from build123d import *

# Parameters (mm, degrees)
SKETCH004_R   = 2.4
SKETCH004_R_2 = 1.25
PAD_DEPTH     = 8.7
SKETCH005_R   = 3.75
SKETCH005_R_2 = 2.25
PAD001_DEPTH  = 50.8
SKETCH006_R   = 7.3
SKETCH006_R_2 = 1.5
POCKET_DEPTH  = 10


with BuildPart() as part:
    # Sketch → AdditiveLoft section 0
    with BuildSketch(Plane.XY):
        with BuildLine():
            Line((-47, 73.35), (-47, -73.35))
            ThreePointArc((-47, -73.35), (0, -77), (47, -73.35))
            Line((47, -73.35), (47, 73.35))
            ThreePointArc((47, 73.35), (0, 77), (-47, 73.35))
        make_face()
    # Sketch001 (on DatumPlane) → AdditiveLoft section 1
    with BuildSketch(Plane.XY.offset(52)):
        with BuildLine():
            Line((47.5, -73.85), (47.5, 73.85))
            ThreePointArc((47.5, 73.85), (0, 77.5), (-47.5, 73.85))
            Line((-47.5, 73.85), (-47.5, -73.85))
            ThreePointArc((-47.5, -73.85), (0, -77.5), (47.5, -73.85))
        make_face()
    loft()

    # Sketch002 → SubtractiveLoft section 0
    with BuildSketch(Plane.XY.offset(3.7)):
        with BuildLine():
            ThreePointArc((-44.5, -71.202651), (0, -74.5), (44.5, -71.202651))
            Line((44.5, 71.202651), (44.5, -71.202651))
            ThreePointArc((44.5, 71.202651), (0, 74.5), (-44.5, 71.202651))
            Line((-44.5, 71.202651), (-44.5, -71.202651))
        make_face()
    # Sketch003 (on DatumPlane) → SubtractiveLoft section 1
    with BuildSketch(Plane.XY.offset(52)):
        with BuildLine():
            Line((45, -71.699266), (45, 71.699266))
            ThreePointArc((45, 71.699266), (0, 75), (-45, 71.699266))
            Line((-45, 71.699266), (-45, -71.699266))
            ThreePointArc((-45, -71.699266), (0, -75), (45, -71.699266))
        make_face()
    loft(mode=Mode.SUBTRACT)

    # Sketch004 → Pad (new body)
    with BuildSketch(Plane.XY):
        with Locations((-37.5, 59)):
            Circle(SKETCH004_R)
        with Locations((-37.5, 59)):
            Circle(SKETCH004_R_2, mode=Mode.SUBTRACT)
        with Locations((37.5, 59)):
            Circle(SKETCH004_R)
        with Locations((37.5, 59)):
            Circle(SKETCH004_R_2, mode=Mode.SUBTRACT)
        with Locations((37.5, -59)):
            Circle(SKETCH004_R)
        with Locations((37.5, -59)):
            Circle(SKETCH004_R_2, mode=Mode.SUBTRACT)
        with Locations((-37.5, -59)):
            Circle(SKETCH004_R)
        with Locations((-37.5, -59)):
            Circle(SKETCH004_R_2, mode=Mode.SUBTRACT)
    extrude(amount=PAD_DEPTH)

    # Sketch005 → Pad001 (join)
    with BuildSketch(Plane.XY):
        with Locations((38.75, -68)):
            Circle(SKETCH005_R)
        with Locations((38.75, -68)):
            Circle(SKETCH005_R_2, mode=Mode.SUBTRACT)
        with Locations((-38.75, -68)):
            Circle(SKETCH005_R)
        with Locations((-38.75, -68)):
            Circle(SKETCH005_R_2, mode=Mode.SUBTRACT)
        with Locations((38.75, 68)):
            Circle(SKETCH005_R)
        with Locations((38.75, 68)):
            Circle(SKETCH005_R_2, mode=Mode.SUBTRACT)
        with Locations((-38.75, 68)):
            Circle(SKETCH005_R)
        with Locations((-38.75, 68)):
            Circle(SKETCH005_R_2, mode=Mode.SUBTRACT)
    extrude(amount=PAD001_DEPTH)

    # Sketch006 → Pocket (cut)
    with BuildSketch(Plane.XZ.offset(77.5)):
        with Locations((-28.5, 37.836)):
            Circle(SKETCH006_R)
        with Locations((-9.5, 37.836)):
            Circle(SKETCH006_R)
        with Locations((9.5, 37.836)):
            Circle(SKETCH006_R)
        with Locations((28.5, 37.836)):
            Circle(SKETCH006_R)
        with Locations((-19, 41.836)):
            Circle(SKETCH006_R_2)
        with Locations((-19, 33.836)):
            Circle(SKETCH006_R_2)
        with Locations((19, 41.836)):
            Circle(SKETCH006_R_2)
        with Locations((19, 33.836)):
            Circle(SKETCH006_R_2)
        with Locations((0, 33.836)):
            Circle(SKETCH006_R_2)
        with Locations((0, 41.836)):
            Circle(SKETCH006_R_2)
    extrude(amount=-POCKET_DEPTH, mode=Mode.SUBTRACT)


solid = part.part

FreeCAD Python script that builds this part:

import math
import FreeCAD as App
import Part
import Sketcher

doc = App.newDocument("Part")
params = doc.addObject("Spreadsheet::Sheet", "Params")
for row, (alias, value) in enumerate([
    ("sketch1_height", "146.7 mm"),
    ("sketch2_height", "147.7 mm"),
    ("sketch5_diameter", "4.8 mm"),
    ("sketch5_diameter2", "2.5 mm"),
    ("pad1_length", "8.7 mm"),
    ("sketch6_diameter", "7.5 mm"),
    ("sketch6_diameter2", "4.5 mm"),
    ("pad2_length", "50.8 mm"),
    ("sketch7_diameter", "3 mm"),
    ("sketch7_diameter2", "14.6 mm"),
    ("pocket1_length", "10 mm"),
], start=1):
    params.set(f"A{row}", alias)
    params.set(f"B{row}", "=" + value)
    params.setAlias(f"B{row}", alias)

body = doc.addObject("PartDesign::Body", "Body")

# Sketch on XY plane
sketch1 = body.newObject("Sketcher::SketchObject", "Sketch")
sketch1.AttachmentSupport = (doc.getObject("XY_Plane"), [""])
sketch1.MapMode = "FlatFace"
sketch1.addGeometry([
    Part.LineSegment(App.Vector(-47, 73, 0), App.Vector(-47, -73, 0)),
    Part.ArcOfCircle(Part.Circle(App.Vector(0, 227, 0), App.Vector(0, 0, 1), 304), math.radians(-98.88), math.radians(-81.12)),
    Part.LineSegment(App.Vector(47, -73, 0), App.Vector(47, 73, 0)),
    Part.ArcOfCircle(Part.Circle(App.Vector(0, -227, 0), App.Vector(0, 0, 1), 304), math.radians(81.12), math.radians(98.88)),
], False)
sketch1.addConstraint([
    Sketcher.Constraint("Coincident", 0, 2, 1, 1),
    Sketcher.Constraint("Coincident", 1, 2, 2, 1),
    Sketcher.Constraint("Coincident", 2, 2, 3, 1),
    Sketcher.Constraint("Coincident", 3, 2, 0, 1),
    Sketcher.Constraint("Vertical", 0),
    Sketcher.Constraint("Vertical", 2),
    Sketcher.Constraint("Equal", 1, 3),
    Sketcher.Constraint("Symmetric", 1, 3, 3, 3, -1, 1),
    Sketcher.Constraint("Symmetric", 0, 2, 1, 2, -2),
    Sketcher.Constraint("DistanceY", 0, 2, 0, 1, 146.7),
    Sketcher.Constraint("DistanceX", 0, 2, -1, 1, 47.0),
    Sketcher.Constraint("Radius", 1, 304.42774),
])
sketch1.setExpression("Constraints[9]", "Params.sketch1_height")

# Sketch on XY plane
sketch2 = body.newObject("Sketcher::SketchObject", "Sketch001")
sketch2.AttachmentSupport = (doc.getObject("XY_Plane"), [""])
sketch2.MapMode = "FlatFace"
sketch2.AttachmentOffset = App.Placement(App.Vector(0, 0, 52), App.Rotation())
sketch2.addGeometry([
    Part.LineSegment(App.Vector(48, -74, 0), App.Vector(48, 74, 0)),
    Part.ArcOfCircle(Part.Circle(App.Vector(0, -233, 0), App.Vector(0, 0, 1), 311), math.radians(81.21), math.radians(98.79)),
    Part.LineSegment(App.Vector(-48, 74, 0), App.Vector(-48, -74, 0)),
    Part.ArcOfCircle(Part.Circle(App.Vector(0, 233, 0), App.Vector(0, 0, 1), 311), math.radians(-98.79), math.radians(-81.21)),
], False)
sketch2.addConstraint([
    Sketcher.Constraint("Coincident", 0, 2, 1, 1),
    Sketcher.Constraint("Coincident", 1, 2, 2, 1),
    Sketcher.Constraint("Coincident", 2, 2, 3, 1),
    Sketcher.Constraint("Coincident", 3, 2, 0, 1),
    Sketcher.Constraint("Vertical", 0),
    Sketcher.Constraint("Vertical", 2),
    Sketcher.Constraint("Equal", 1, 3),
    Sketcher.Constraint("Symmetric", 1, 3, 3, 3, -1, 1),
    Sketcher.Constraint("Symmetric", 0, 2, 1, 2, -2),
    Sketcher.Constraint("DistanceY", 0, 1, 0, 2, 147.7),
    Sketcher.Constraint("DistanceX", 1, 2, 0, 2, 95.0),
    Sketcher.Constraint("Radius", 1, 310.900342),
])
sketch2.setExpression("Constraints[9]", "Params.sketch2_height")

additiveloft = body.newObject("PartDesign::AdditiveLoft", "AdditiveLoft")
additiveloft.Profile = sketch1
additiveloft.Sections = [sketch2]

# Sketch on XY plane
sketch3 = body.newObject("Sketcher::SketchObject", "Sketch002")
sketch3.AttachmentSupport = (doc.getObject("XY_Plane"), [""])
sketch3.MapMode = "FlatFace"
sketch3.AttachmentOffset = App.Placement(App.Vector(0, 0, 3.7), App.Rotation())
sketch3.addGeometry([
    Part.ArcOfCircle(Part.Circle(App.Vector(0, 227, 0), App.Vector(0, 0, 1), 302), math.radians(-98.48), math.radians(-81.52)),
    Part.LineSegment(App.Vector(44, -71, 0), App.Vector(44, 71, 0)),
    Part.ArcOfCircle(Part.Circle(App.Vector(0, -227, 0), App.Vector(0, 0, 1), 302), math.radians(81.52), math.radians(98.48)),
    Part.LineSegment(App.Vector(-44, 71, 0), App.Vector(-44, -71, 0)),
], False)
sketch3.addConstraint([
    Sketcher.Constraint("Coincident", 0, 2, 1, 1),
    Sketcher.Constraint("Coincident", 1, 2, 2, 1),
    Sketcher.Constraint("Coincident", 2, 2, 3, 1),
    Sketcher.Constraint("Coincident", 3, 2, 0, 1),
    Sketcher.Constraint("Vertical", 1),
    Sketcher.Constraint("Vertical", 3),
    Sketcher.Constraint("Equal", 0, 2),
    Sketcher.Constraint("Symmetric", 0, 3, 2, 3, -1, 1),
    Sketcher.Constraint("Symmetric", 1, 2, 2, 2, -2),
    Sketcher.Constraint("DistanceX", 2, 2, 1, 2, 89.0),
    Sketcher.Constraint("DistanceY", 1, 1, 1, 2, 142.405302),
    Sketcher.Constraint("Radius", 0, 301.927778),
])

# Sketch on XY plane
sketch4 = body.newObject("Sketcher::SketchObject", "Sketch003")
sketch4.AttachmentSupport = (doc.getObject("XY_Plane"), [""])
sketch4.MapMode = "FlatFace"
sketch4.AttachmentOffset = App.Placement(App.Vector(0, 0, 52), App.Rotation())
sketch4.addGeometry([
    Part.LineSegment(App.Vector(45, -72, 0), App.Vector(45, 72, 0)),
    Part.ArcOfCircle(Part.Circle(App.Vector(0, -233, 0), App.Vector(0, 0, 1), 308), math.radians(81.61), math.radians(98.39)),
    Part.LineSegment(App.Vector(-45, 72, 0), App.Vector(-45, -72, 0)),
    Part.ArcOfCircle(Part.Circle(App.Vector(0, 233, 0), App.Vector(0, 0, 1), 308), math.radians(-98.39), math.radians(-81.61)),
], False)
sketch4.addConstraint([
    Sketcher.Constraint("Coincident", 0, 2, 1, 1),
    Sketcher.Constraint("Coincident", 1, 2, 2, 1),
    Sketcher.Constraint("Coincident", 2, 2, 3, 1),
    Sketcher.Constraint("Coincident", 3, 2, 0, 1),
    Sketcher.Constraint("Vertical", 0),
    Sketcher.Constraint("Vertical", 2),
    Sketcher.Constraint("Equal", 1, 3),
    Sketcher.Constraint("Symmetric", 1, 3, 3, 3, -1, 1),
    Sketcher.Constraint("Symmetric", 0, 2, 1, 2, -2),
    Sketcher.Constraint("DistanceX", -1, 1, 0, 2, 45.0),
    Sketcher.Constraint("Radius", 1, 308.40032),
    Sketcher.Constraint("DistanceY", 0, 1, 0, 2, 143.398532),
])

subtractiveloft = body.newObject("PartDesign::SubtractiveLoft", "SubtractiveLoft")
subtractiveloft.Profile = sketch3
subtractiveloft.Sections = [sketch4]

# Sketch on XY plane
sketch5 = body.newObject("Sketcher::SketchObject", "Sketch004")
sketch5.AttachmentSupport = (doc.getObject("XY_Plane"), [""])
sketch5.MapMode = "FlatFace"
sketch5.addGeometry([
    Part.Circle(App.Vector(-37.5, 59, 0), App.Vector(0, 0, 1), 2.4),  # 0
    Part.Circle(App.Vector(-37.5, 59, 0), App.Vector(0, 0, 1), 1.2),  # 1
    Part.Circle(App.Vector(37.5, 59, 0), App.Vector(0, 0, 1), 2.4),  # 2
    Part.Circle(App.Vector(37.5, 59, 0), App.Vector(0, 0, 1), 1.2),  # 3
    Part.Circle(App.Vector(37.5, -59, 0), App.Vector(0, 0, 1), 2.4),  # 4
    Part.Circle(App.Vector(37.5, -59, 0), App.Vector(0, 0, 1), 1.2),  # 5
    Part.Circle(App.Vector(-37.5, -59, 0), App.Vector(0, 0, 1), 2.4),  # 6
    Part.Circle(App.Vector(-37.5, -59, 0), App.Vector(0, 0, 1), 1.2),  # 7
], False)
sketch5.addConstraint([
    Sketcher.Constraint("Coincident", 1, 3, 0, 3),
    Sketcher.Constraint("Coincident", 3, 3, 2, 3),
    Sketcher.Constraint("Coincident", 5, 3, 4, 3),
    Sketcher.Constraint("Coincident", 7, 3, 6, 3),
    Sketcher.Constraint("Equal", 0, 2),
    Sketcher.Constraint("Equal", 1, 3),
    Sketcher.Constraint("Equal", 2, 4),
    Sketcher.Constraint("Equal", 3, 5),
    Sketcher.Constraint("Equal", 4, 6),
    Sketcher.Constraint("Equal", 5, 7),
    Sketcher.Constraint("Symmetric", 0, 3, 4, 3, -1, 1),
    Sketcher.Constraint("Symmetric", 2, 3, 6, 3, -1, 1),
    Sketcher.Constraint("Symmetric", 0, 3, 2, 3, -2),
    Sketcher.Constraint("Diameter", 0, 4.8),
    Sketcher.Constraint("Diameter", 1, 2.5),
    Sketcher.Constraint("DistanceY", -1, 1, 0, 3, 59.0),
    Sketcher.Constraint("DistanceX", 0, 3, 2, 3, 75.0),
])
sketch5.setExpression("Constraints[13]", "Params.sketch5_diameter")
sketch5.setExpression("Constraints[14]", "Params.sketch5_diameter2")
pad1 = body.newObject("PartDesign::Pad", "Pad")
pad1.Profile = sketch5
pad1.setExpression("Length", "Params.pad1_length")

# Sketch on XY plane
sketch6 = body.newObject("Sketcher::SketchObject", "Sketch005")
sketch6.AttachmentSupport = (doc.getObject("XY_Plane"), [""])
sketch6.MapMode = "FlatFace"
sketch6.addGeometry([
    Part.Circle(App.Vector(38.8, -68, 0), App.Vector(0, 0, 1), 3.8),  # 0
    Part.Circle(App.Vector(38.8, -68, 0), App.Vector(0, 0, 1), 2.2),  # 1
    Part.Circle(App.Vector(-38.8, -68, 0), App.Vector(0, 0, 1), 3.8),  # 2
    Part.Circle(App.Vector(-38.8, -68, 0), App.Vector(0, 0, 1), 2.2),  # 3
    Part.Circle(App.Vector(38.8, 68, 0), App.Vector(0, 0, 1), 3.8),  # 4
    Part.Circle(App.Vector(38.8, 68, 0), App.Vector(0, 0, 1), 2.2),  # 5
    Part.Circle(App.Vector(-38.8, 68, 0), App.Vector(0, 0, 1), 3.8),  # 6
    Part.Circle(App.Vector(-38.8, 68, 0), App.Vector(0, 0, 1), 2.2),  # 7
], False)
sketch6.addConstraint([
    Sketcher.Constraint("Coincident", 1, 3, 0, 3),
    Sketcher.Constraint("Coincident", 3, 3, 2, 3),
    Sketcher.Constraint("Coincident", 5, 3, 4, 3),
    Sketcher.Constraint("Coincident", 7, 3, 6, 3),
    Sketcher.Constraint("Equal", 0, 2),
    Sketcher.Constraint("Equal", 1, 3),
    Sketcher.Constraint("Equal", 2, 4),
    Sketcher.Constraint("Equal", 3, 5),
    Sketcher.Constraint("Equal", 4, 6),
    Sketcher.Constraint("Equal", 5, 7),
    Sketcher.Constraint("Symmetric", 2, 3, 4, 3, -1, 1),
    Sketcher.Constraint("Symmetric", 0, 3, 6, 3, -1, 1),
    Sketcher.Constraint("Symmetric", 0, 3, 2, 3, -2),
    Sketcher.Constraint("Diameter", 0, 7.5),
    Sketcher.Constraint("Diameter", 1, 4.5),
    Sketcher.Constraint("DistanceY", 0, 3, -1, 1, 68.0),
    Sketcher.Constraint("DistanceX", 2, 3, 0, 3, 77.5),
])
sketch6.setExpression("Constraints[13]", "Params.sketch6_diameter")
sketch6.setExpression("Constraints[14]", "Params.sketch6_diameter2")
pad2 = body.newObject("PartDesign::Pad", "Pad001")
pad2.Profile = sketch6
pad2.setExpression("Length", "Params.pad2_length")

# Sketch on XZ plane
sketch7 = body.newObject("Sketcher::SketchObject", "Sketch006")
sketch7.AttachmentSupport = (doc.getObject("XZ_Plane"), [""])
sketch7.MapMode = "FlatFace"
sketch7.AttachmentOffset = App.Placement(App.Vector(0, 0, 77.5), App.Rotation())
sketch7.addGeometry([
    Part.Circle(App.Vector(-28.5, 37.8, 0), App.Vector(0, 0, 1), 7.3),  # 0
    Part.Circle(App.Vector(-9.5, 37.8, 0), App.Vector(0, 0, 1), 7.3),  # 1
    Part.Circle(App.Vector(9.5, 37.8, 0), App.Vector(0, 0, 1), 7.3),  # 2
    Part.Circle(App.Vector(28.5, 37.8, 0), App.Vector(0, 0, 1), 7.3),  # 3
    Part.Circle(App.Vector(-19, 41.8, 0), App.Vector(0, 0, 1), 1.5),  # 4
    Part.Circle(App.Vector(-19, 33.8, 0), App.Vector(0, 0, 1), 1.5),  # 5
    Part.Circle(App.Vector(19, 41.8, 0), App.Vector(0, 0, 1), 1.5),  # 6
    Part.Circle(App.Vector(19, 33.8, 0), App.Vector(0, 0, 1), 1.5),  # 7
    Part.Circle(App.Vector(0, 33.8, 0), App.Vector(0, 0, 1), 1.5),  # 8
    Part.Circle(App.Vector(0, 41.8, 0), App.Vector(0, 0, 1), 1.5),  # 9
], False)
sketch7.addConstraint([
    Sketcher.Constraint("Equal", 0, 1),
    Sketcher.Constraint("Equal", 1, 2),
    Sketcher.Constraint("Equal", 2, 3),
    Sketcher.Constraint("Equal", 4, 5),
    Sketcher.Constraint("Equal", 5, 6),
    Sketcher.Constraint("Equal", 6, 7),
    Sketcher.Constraint("Equal", 7, 8),
    Sketcher.Constraint("Equal", 8, 9),
    Sketcher.Constraint("Symmetric", 1, 3, 2, 3, -2),
    Sketcher.Constraint("Symmetric", 0, 3, 3, 3, -2),
    Sketcher.Constraint("Symmetric", 4, 3, 6, 3, -2),
    Sketcher.Constraint("Symmetric", 5, 3, 7, 3, -2),
    Sketcher.Constraint("PointOnObject", 8, 3, -2),
    Sketcher.Constraint("PointOnObject", 9, 3, -2),
    Sketcher.Constraint("Horizontal", 0, 3, 1, 3),
    Sketcher.Constraint("Horizontal", 7, 3, 8, 3),
    Sketcher.Constraint("Horizontal", 6, 3, 9, 3),
    Sketcher.Constraint("Vertical", 4, 3, 5, 3),
    Sketcher.Constraint("Diameter", 4, 3.0),
    Sketcher.Constraint("Diameter", 0, 14.6),
    Sketcher.Constraint("DistanceX", 4, 3, -1, 1, 19.0),
    Sketcher.Constraint("DistanceX", 0, 3, 1, 3, 19.0),
    Sketcher.Constraint("DistanceX", 1, 3, 2, 3, 19.0),
    Sketcher.Constraint("DistanceY", 0, 3, 4, 3, 4.0),
    Sketcher.Constraint("DistanceY", 5, 3, 4, 3, 8.0),
    Sketcher.Constraint("DistanceY", -1, 1, 0, 3, 37.836),
])
sketch7.setExpression("Constraints[18]", "Params.sketch7_diameter")
sketch7.setExpression("Constraints[19]", "Params.sketch7_diameter2")
pocket1 = body.newObject("PartDesign::Pocket", "Pocket")
pocket1.Profile = sketch7
pocket1.setExpression("Length", "Params.pocket1_length")

doc.recompute()
